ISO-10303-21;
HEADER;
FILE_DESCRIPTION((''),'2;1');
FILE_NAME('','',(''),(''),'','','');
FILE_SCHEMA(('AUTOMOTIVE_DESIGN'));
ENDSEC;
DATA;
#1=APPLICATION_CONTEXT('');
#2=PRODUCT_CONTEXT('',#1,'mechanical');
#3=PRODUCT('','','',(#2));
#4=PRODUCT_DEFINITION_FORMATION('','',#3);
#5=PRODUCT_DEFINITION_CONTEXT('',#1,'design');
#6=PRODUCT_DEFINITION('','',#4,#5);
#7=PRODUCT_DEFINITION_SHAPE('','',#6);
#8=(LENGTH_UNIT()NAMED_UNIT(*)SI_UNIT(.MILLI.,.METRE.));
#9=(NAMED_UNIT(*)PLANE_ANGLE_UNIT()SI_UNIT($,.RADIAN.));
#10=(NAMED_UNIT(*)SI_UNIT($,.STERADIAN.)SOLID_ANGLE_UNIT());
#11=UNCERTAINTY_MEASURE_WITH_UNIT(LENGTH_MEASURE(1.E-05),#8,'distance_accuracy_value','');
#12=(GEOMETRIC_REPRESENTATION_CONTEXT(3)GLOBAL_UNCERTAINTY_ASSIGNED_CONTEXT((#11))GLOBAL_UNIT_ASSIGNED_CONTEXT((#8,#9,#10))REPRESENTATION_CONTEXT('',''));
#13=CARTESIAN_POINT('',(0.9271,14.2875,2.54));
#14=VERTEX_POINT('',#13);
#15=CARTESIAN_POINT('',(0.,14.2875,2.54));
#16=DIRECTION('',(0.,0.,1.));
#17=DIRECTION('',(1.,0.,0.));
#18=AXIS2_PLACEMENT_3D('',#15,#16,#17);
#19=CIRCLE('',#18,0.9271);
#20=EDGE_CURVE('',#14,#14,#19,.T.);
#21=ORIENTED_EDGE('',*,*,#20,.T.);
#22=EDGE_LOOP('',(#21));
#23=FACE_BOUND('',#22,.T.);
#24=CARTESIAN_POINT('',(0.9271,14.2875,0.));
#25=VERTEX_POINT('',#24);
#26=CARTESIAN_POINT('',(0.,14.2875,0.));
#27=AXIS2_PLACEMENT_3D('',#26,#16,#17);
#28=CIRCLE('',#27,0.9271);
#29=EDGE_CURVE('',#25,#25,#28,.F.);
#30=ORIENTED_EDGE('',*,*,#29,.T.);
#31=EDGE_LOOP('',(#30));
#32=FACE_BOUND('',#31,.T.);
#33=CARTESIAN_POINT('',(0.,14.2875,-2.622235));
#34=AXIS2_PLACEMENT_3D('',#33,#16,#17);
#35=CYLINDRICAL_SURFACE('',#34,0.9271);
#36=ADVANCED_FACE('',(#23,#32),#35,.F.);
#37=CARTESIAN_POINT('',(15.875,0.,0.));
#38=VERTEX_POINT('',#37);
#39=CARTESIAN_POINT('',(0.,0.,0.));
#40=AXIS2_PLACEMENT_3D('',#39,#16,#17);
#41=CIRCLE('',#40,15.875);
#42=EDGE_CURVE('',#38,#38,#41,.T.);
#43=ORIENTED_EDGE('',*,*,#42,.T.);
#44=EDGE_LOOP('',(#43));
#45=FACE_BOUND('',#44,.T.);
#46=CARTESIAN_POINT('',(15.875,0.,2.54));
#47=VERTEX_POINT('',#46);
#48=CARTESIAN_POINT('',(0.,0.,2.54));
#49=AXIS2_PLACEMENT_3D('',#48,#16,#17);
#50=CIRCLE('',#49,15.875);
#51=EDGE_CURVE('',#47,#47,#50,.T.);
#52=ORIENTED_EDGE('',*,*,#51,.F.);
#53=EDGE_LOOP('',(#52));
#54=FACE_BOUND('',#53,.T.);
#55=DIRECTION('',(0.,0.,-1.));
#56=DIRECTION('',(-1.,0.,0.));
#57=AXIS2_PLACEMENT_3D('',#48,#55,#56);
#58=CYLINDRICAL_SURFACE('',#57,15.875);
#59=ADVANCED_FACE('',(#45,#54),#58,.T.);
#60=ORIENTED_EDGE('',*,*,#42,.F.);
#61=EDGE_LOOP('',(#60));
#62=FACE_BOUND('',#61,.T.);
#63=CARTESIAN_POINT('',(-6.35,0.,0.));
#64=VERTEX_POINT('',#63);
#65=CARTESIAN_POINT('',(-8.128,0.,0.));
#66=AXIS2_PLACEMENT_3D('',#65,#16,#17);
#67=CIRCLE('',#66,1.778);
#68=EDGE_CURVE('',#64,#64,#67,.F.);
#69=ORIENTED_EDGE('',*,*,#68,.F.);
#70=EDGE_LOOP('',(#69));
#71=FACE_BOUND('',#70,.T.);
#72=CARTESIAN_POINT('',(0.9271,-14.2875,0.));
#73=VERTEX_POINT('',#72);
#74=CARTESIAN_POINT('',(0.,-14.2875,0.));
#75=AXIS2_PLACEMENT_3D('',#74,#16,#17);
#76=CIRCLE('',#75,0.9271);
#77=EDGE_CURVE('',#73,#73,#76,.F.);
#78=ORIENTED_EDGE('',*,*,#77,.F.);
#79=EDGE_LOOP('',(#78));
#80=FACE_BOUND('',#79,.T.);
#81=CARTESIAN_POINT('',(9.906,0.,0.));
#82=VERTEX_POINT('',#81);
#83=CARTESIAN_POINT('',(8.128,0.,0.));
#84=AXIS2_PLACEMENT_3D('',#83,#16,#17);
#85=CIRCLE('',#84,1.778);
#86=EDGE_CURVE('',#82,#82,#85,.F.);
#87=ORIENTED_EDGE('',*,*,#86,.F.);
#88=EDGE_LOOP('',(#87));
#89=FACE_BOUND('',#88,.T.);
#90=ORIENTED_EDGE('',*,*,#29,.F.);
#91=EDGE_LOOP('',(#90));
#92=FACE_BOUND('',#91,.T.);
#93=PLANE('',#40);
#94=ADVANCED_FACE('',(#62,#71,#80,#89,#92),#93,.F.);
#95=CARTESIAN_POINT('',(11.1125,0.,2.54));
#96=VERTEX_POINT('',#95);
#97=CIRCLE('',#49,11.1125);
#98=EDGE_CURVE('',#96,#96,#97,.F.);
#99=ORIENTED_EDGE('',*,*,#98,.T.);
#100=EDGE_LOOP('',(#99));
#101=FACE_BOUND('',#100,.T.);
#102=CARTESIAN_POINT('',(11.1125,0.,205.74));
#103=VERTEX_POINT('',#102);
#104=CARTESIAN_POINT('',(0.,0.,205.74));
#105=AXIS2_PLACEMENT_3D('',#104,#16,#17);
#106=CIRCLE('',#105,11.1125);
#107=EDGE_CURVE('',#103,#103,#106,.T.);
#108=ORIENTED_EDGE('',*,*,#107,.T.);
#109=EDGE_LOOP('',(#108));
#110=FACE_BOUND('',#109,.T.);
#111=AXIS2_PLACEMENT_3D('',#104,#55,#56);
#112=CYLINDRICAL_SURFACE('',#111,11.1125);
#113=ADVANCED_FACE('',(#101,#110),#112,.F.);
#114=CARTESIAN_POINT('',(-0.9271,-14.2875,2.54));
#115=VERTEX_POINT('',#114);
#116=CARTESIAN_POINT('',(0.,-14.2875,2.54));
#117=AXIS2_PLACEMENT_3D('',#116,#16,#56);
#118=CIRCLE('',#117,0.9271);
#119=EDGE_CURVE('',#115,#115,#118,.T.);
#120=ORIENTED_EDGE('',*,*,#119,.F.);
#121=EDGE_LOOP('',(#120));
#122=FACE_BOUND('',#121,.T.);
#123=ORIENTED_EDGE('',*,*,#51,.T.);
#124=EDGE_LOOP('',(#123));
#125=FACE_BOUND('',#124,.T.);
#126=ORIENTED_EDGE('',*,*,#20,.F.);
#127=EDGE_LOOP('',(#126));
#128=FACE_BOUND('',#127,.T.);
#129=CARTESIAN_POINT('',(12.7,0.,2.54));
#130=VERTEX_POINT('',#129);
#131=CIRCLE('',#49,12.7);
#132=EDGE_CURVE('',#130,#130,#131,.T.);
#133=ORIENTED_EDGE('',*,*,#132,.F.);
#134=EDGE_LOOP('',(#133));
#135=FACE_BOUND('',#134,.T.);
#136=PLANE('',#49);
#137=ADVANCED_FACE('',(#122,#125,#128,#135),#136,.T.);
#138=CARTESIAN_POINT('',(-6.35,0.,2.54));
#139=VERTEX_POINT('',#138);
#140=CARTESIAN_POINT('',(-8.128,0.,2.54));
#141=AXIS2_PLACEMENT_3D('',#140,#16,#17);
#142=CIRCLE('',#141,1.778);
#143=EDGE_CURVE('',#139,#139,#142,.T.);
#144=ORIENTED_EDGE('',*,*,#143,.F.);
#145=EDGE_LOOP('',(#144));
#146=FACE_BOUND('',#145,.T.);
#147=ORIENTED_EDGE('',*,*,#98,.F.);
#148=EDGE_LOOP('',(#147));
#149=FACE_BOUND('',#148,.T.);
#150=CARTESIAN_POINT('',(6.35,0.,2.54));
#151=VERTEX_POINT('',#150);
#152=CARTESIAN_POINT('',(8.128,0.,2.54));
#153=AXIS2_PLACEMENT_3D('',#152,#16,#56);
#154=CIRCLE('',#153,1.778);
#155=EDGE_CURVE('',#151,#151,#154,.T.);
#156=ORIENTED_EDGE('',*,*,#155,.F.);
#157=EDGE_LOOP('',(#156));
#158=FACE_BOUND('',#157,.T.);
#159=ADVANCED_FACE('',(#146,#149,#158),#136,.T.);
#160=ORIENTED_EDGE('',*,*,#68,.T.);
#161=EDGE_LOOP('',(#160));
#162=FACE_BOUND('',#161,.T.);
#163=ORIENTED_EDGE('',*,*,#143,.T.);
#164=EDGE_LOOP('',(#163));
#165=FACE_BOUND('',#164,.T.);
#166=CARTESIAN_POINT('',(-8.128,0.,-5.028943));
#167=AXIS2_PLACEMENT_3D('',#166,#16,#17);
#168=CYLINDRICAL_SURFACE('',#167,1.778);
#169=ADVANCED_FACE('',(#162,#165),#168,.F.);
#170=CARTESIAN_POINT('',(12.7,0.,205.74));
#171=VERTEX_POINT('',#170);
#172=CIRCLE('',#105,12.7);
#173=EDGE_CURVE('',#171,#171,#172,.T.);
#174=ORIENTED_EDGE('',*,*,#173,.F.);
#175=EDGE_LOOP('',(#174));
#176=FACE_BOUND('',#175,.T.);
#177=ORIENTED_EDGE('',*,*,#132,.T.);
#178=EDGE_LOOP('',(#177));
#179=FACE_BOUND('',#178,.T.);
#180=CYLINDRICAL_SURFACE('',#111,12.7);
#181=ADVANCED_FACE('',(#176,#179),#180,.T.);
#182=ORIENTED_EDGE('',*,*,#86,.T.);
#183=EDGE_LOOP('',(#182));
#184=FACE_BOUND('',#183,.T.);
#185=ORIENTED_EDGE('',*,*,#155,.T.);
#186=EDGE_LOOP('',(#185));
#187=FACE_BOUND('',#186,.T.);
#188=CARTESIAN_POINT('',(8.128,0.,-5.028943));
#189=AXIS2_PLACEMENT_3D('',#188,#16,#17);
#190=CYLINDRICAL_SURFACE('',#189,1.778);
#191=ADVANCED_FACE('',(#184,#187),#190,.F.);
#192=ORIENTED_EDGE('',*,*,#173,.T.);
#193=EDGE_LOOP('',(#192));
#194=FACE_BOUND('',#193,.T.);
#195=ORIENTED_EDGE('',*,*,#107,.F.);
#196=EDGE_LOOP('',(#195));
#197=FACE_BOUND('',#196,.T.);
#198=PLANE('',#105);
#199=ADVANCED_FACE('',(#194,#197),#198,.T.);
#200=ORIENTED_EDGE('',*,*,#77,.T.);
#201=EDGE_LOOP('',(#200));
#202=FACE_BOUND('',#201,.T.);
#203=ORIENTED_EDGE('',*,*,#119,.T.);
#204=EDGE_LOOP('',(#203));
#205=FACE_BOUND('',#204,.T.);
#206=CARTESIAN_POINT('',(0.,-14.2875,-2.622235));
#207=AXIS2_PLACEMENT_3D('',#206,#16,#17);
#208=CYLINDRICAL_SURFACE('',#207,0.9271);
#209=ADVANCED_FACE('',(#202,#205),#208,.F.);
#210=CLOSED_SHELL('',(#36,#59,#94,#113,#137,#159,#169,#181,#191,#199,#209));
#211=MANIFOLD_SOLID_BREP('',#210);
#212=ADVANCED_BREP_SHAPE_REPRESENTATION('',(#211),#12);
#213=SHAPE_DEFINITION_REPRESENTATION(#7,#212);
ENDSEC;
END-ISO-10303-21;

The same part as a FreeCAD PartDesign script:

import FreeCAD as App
import Part
import Sketcher
from FreeCAD import Vector
Q = App.Units.Quantity

doc = App.newDocument("Part")
body = doc.addObject("PartDesign::Body", "Body")

sketch1 = body.newObject("Sketcher::SketchObject", "Sketch")
sketch1.AttachmentSupport = (doc.getObject("XY_Plane"), [""])
sketch1.MapMode = "FlatFace"
sketch1.addGeometry(Part.Circle(Vector(0, 0, 0), Vector(0, 0, 1), 15.875), False)
sketch1.addConstraint([
    Sketcher.Constraint("Coincident", 0, 3, -1, 1),
    Sketcher.Constraint("Diameter", 0, Q("1.25 in")),
])
pad1 = body.newObject("PartDesign::Pad", "Pad")
pad1.Profile = sketch1
pad1.Length = Q("0.1 in")

sketch2 = body.newObject("Sketcher::SketchObject", "Sketch001")
sketch2.AttachmentSupport = (doc.getObject("XY_Plane"), [""])
sketch2.MapMode = "FlatFace"
sketch2.AttachmentOffset = App.Placement(Vector(0, 0, 0.1 * 25.4), App.Rotation())
sketch2.addGeometry([
    Part.Circle(Vector(0, 0, 0), Vector(0, 0, 1), 12.7),
    Part.Circle(Vector(0, 0, 0), Vector(0, 0, 1), 11.1125),
], False)
sketch2.addConstraint([
    Sketcher.Constraint("Coincident", 0, 3, -1, 1),
    Sketcher.Constraint("Coincident", 1, 3, -1, 1),
    Sketcher.Constraint("Diameter", 0, Q("1 in")),
    Sketcher.Constraint("Diameter", 1, Q("0.875 in")),
])
pad2 = body.newObject("PartDesign::Pad", "Pad001")
pad2.Profile = sketch2
pad2.Length = Q("8 in")

sketch3 = body.newObject("Sketcher::SketchObject", "Sketch002")
sketch3.AttachmentSupport = (doc.getObject("XY_Plane"), [""])
sketch3.MapMode = "FlatFace"
sketch3.AttachmentOffset = App.Placement(Vector(0, 0, 0.1 * 25.4), App.Rotation())
sketch3.addGeometry([
    Part.Circle(Vector(-8.128, 0, 0), Vector(0, 0, 1), 1.778),
    Part.Circle(Vector(8.128, 0, 0), Vector(0, 0, 1), 1.778),
], False)
sketch3.addConstraint([
    Sketcher.Constraint("Equal", 0, 1),
    Sketcher.Constraint("Symmetric", 0, 3, 1, 3, -1, 1),
    Sketcher.Constraint("PointOnObject", 0, 3, -1),
    Sketcher.Constraint("Diameter", 0, Q("0.14 in")),
    Sketcher.Constraint("DistanceX", 0, 3, -1, 1, Q("0.32 in")),
])
pocket1 = body.newObject("PartDesign::Pocket", "Pocket")
pocket1.Profile = sketch3
pocket1.Length = Q("0.1 in")

sketch4 = body.newObject("Sketcher::SketchObject", "Sketch003")
sketch4.AttachmentSupport = (doc.getObject("XY_Plane"), [""])
sketch4.MapMode = "FlatFace"
sketch4.AttachmentOffset = App.Placement(Vector(0, 0, 0.1 * 25.4), App.Rotation())
sketch4.addGeometry([
    Part.Circle(Vector(0, 14.2875, 0), Vector(0, 0, 1), 0.9271),
    Part.Circle(Vector(0, -14.2875, 0), Vector(0, 0, 1), 0.9271),
], False)
sketch4.addConstraint([
    Sketcher.Constraint("Equal", 0, 1),
    Sketcher.Constraint("Symmetric", 0, 3, 1, 3, -1, 1),
    Sketcher.Constraint("PointOnObject", 0, 3, -2),
    Sketcher.Constraint("Diameter", 0, Q("0.073 in")),
    Sketcher.Constraint("DistanceY", -1, 1, 0, 3, Q("0.5625 in")),
])
pocket2 = body.newObject("PartDesign::Pocket", "Pocket001")
pocket2.Profile = sketch4
pocket2.Length = Q("0.1 in")

doc.recompute()
